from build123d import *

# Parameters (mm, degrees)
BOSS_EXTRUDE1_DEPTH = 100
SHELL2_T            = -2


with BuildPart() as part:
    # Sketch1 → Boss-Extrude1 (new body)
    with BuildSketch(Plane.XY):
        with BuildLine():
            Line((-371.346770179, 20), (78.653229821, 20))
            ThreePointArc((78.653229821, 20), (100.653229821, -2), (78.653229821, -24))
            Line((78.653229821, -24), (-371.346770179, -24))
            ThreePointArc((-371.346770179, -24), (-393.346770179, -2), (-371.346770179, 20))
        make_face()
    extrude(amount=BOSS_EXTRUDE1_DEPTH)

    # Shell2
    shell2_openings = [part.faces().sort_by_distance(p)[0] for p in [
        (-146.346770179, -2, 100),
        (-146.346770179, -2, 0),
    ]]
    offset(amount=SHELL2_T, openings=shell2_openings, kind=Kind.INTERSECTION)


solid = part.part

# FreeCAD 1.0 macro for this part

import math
import FreeCAD as App
import Part
import Sketcher

V = App.Vector


def faces_at(feature, points):
    """Names of the faces that lie closest to the given points."""
    faces = feature.Shape.Faces
    near = lambda p: min(range(len(faces)), key=lambda i: faces[i].distToShape(Part.Vertex(*p))[0])
    return sorted({f"Face{near(p) + 1}" for p in points})

doc = App.newDocument("Part")
params = doc.addObject("Spreadsheet::Sheet", "Params")
for row, (alias, value) in enumerate([
    ("sketch1_radius", "22 mm"),
    ("sketch1_width", "450 mm"),
    ("pad1_length", "100 mm"),
    ("thickness_wall", "2 mm"),
], start=1):
    params.set(f"A{row}", alias)
    params.set(f"B{row}", "=" + value)
    params.setAlias(f"B{row}", alias)

body = doc.addObject("PartDesign::Body", "Body")

sketch1 = body.newObject("Sketcher::SketchObject", "Sketch")
sketch1.AttachmentSupport = (doc.getObject("XY_Plane"), [""])
sketch1.MapMode = "FlatFace"
sketch1.addGeometry(Part.LineSegment(V(79, 20, 0), V(-371, 20, 0)), False)
sketch1.addGeometry(Part.ArcOfCircle(Part.Circle(V(-371, -2, 0), V(0, 0, 1), 22), math.radians(90), math.radians(270)), False)
sketch1.addGeometry(Part.LineSegment(V(-371, -24, 0), V(79, -24, 0)), False)
sketch1.addGeometry(Part.ArcOfCircle(Part.Circle(V(79, -2, 0), V(0, 0, 1), 22), math.radians(-90), math.radians(90)), False)
sketch1.addConstraint(Sketcher.Constraint("Tangent", 0, 2, 1, 1))
sketch1.addConstraint(Sketcher.Constraint("Tangent", 1, 2, 2, 1))
sketch1.addConstraint(Sketcher.Constraint("Tangent", 2, 2, 3, 1))
sketch1.addConstraint(Sketcher.Constraint("Tangent", 3, 2, 0, 1))
sketch1.addConstraint(Sketcher.Constraint("Horizontal", 0))
sketch1.addConstraint(Sketcher.Constraint("Horizontal", 2))
sketch1.addConstraint(Sketcher.Constraint("Radius", 1, 22.0))
sketch1.addConstraint(Sketcher.Constraint("DistanceX", 0, 2, 0, 1, 450.0))
sketch1.addConstraint(Sketcher.Constraint("DistanceY", 1, 3, -1, 1, 2.0))
sketch1.addConstraint(Sketcher.Constraint("DistanceX", 1, 3, -1, 1, 371.34677))
sketch1.setExpression("Constraints[6]", "Params.sketch1_radius")
sketch1.setExpression("Constraints[7]", "Params.sketch1_width")
pad1 = body.newObject("PartDesign::Pad", "Pad")
pad1.Profile = sketch1
pad1.setExpression("Length", "Params.pad1_length")
doc.recompute()

thickness = body.newObject("PartDesign::Thickness", "Thickness")
thickness.Base = (pad1, faces_at(pad1, [(-146.347, -2, 100), (-146.347, -2, 0)]))
thickness.setExpression("Value", "Params.thickness_wall")
thickness.Reversed = True
thickness.Join = "Intersection"

doc.recompute()
